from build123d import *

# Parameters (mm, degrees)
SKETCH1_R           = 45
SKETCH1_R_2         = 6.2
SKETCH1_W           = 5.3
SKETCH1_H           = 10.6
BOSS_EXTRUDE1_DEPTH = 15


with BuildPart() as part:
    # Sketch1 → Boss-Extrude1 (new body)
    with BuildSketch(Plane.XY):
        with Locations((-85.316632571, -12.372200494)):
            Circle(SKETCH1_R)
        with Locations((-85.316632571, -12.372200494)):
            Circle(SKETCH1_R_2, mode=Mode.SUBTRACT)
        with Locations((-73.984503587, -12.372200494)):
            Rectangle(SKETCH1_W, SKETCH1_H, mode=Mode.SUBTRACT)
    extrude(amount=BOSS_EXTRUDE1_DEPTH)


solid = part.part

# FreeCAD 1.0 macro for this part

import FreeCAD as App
import Part
import Sketcher

V = App.Vector
Q = App.Units.Quantity

doc = App.newDocument("Part")
body = doc.addObject("PartDesign::Body", "Body")

sketch1 = body.newObject("Sketcher::SketchObject", "Sketch")
sketch1.AttachmentSupport = (doc.getObject("XY_Plane"), [""])
sketch1.MapMode = "FlatFace"
sketch1.addGeometry(Part.Circle(V(-85, -12, 0), V(0, 0, 1), 45), False)
sketch1.addGeometry(Part.Circle(V(-85, -12, 0), V(0, 0, 1), 6), False)
sketch1.addGeometry(Part.LineSegment(V(-71, -18, 0), V(-77, -18, 0)), False)
sketch1.addGeometry(Part.LineSegment(V(-77, -18, 0), V(-77, -7, 0)), False)
sketch1.addGeometry(Part.LineSegment(V(-77, -7, 0), V(-71, -7, 0)), False)
sketch1.addGeometry(Part.LineSegment(V(-71, -7, 0), V(-71, -18, 0)), False)
sketch1.addConstraint(Sketcher.Constraint("Coincident", 2, 2, 3, 1))
sketch1.addConstraint(Sketcher.Constraint("Coincident", 3, 2, 4, 1))
sketch1.addConstraint(Sketcher.Constraint("Coincident", 4, 2, 5, 1))
sketch1.addConstraint(Sketcher.Constraint("Coincident", 5, 2, 2, 1))
sketch1.addConstraint(Sketcher.Constraint("Horizontal", 2))
sketch1.addConstraint(Sketcher.Constraint("Vertical", 3))
sketch1.addConstraint(Sketcher.Constraint("Horizontal", 4))
sketch1.addConstraint(Sketcher.Constraint("Vertical", 5))
sketch1.addConstraint(Sketcher.Constraint("Coincident", 1, 3, 0, 3))
sketch1.addConstraint(Sketcher.Constraint("Diameter", 0, Q("90 mm")))
sketch1.addConstraint(Sketcher.Constraint("Diameter", 1, Q("12.4 mm")))
sketch1.addConstraint(Sketcher.Constraint("DistanceX", 2, 2, 2, 1, Q("5.3 mm")))
sketch1.addConstraint(Sketcher.Constraint("DistanceY", 3, 1, 3, 2, Q("10.6 mm")))
sketch1.addConstraint(Sketcher.Constraint("DistanceY", 2, 2, 0, 3, Q("5.3 mm")))
sketch1.addConstraint(Sketcher.Constraint("DistanceY", 0, 3, -1, 1, Q("12.3722 mm")))
sketch1.addConstraint(Sketcher.Constraint("DistanceX", 0, 3, 2, 2, Q("8.682129 mm")))
sketch1.addConstraint(Sketcher.Constraint("DistanceX", 0, 3, -1, 1, Q("85.316633 mm")))
pad1 = body.newObject("PartDesign::Pad", "Pad")
pad1.Profile = sketch1
pad1.Length = 15

doc.recompute()
